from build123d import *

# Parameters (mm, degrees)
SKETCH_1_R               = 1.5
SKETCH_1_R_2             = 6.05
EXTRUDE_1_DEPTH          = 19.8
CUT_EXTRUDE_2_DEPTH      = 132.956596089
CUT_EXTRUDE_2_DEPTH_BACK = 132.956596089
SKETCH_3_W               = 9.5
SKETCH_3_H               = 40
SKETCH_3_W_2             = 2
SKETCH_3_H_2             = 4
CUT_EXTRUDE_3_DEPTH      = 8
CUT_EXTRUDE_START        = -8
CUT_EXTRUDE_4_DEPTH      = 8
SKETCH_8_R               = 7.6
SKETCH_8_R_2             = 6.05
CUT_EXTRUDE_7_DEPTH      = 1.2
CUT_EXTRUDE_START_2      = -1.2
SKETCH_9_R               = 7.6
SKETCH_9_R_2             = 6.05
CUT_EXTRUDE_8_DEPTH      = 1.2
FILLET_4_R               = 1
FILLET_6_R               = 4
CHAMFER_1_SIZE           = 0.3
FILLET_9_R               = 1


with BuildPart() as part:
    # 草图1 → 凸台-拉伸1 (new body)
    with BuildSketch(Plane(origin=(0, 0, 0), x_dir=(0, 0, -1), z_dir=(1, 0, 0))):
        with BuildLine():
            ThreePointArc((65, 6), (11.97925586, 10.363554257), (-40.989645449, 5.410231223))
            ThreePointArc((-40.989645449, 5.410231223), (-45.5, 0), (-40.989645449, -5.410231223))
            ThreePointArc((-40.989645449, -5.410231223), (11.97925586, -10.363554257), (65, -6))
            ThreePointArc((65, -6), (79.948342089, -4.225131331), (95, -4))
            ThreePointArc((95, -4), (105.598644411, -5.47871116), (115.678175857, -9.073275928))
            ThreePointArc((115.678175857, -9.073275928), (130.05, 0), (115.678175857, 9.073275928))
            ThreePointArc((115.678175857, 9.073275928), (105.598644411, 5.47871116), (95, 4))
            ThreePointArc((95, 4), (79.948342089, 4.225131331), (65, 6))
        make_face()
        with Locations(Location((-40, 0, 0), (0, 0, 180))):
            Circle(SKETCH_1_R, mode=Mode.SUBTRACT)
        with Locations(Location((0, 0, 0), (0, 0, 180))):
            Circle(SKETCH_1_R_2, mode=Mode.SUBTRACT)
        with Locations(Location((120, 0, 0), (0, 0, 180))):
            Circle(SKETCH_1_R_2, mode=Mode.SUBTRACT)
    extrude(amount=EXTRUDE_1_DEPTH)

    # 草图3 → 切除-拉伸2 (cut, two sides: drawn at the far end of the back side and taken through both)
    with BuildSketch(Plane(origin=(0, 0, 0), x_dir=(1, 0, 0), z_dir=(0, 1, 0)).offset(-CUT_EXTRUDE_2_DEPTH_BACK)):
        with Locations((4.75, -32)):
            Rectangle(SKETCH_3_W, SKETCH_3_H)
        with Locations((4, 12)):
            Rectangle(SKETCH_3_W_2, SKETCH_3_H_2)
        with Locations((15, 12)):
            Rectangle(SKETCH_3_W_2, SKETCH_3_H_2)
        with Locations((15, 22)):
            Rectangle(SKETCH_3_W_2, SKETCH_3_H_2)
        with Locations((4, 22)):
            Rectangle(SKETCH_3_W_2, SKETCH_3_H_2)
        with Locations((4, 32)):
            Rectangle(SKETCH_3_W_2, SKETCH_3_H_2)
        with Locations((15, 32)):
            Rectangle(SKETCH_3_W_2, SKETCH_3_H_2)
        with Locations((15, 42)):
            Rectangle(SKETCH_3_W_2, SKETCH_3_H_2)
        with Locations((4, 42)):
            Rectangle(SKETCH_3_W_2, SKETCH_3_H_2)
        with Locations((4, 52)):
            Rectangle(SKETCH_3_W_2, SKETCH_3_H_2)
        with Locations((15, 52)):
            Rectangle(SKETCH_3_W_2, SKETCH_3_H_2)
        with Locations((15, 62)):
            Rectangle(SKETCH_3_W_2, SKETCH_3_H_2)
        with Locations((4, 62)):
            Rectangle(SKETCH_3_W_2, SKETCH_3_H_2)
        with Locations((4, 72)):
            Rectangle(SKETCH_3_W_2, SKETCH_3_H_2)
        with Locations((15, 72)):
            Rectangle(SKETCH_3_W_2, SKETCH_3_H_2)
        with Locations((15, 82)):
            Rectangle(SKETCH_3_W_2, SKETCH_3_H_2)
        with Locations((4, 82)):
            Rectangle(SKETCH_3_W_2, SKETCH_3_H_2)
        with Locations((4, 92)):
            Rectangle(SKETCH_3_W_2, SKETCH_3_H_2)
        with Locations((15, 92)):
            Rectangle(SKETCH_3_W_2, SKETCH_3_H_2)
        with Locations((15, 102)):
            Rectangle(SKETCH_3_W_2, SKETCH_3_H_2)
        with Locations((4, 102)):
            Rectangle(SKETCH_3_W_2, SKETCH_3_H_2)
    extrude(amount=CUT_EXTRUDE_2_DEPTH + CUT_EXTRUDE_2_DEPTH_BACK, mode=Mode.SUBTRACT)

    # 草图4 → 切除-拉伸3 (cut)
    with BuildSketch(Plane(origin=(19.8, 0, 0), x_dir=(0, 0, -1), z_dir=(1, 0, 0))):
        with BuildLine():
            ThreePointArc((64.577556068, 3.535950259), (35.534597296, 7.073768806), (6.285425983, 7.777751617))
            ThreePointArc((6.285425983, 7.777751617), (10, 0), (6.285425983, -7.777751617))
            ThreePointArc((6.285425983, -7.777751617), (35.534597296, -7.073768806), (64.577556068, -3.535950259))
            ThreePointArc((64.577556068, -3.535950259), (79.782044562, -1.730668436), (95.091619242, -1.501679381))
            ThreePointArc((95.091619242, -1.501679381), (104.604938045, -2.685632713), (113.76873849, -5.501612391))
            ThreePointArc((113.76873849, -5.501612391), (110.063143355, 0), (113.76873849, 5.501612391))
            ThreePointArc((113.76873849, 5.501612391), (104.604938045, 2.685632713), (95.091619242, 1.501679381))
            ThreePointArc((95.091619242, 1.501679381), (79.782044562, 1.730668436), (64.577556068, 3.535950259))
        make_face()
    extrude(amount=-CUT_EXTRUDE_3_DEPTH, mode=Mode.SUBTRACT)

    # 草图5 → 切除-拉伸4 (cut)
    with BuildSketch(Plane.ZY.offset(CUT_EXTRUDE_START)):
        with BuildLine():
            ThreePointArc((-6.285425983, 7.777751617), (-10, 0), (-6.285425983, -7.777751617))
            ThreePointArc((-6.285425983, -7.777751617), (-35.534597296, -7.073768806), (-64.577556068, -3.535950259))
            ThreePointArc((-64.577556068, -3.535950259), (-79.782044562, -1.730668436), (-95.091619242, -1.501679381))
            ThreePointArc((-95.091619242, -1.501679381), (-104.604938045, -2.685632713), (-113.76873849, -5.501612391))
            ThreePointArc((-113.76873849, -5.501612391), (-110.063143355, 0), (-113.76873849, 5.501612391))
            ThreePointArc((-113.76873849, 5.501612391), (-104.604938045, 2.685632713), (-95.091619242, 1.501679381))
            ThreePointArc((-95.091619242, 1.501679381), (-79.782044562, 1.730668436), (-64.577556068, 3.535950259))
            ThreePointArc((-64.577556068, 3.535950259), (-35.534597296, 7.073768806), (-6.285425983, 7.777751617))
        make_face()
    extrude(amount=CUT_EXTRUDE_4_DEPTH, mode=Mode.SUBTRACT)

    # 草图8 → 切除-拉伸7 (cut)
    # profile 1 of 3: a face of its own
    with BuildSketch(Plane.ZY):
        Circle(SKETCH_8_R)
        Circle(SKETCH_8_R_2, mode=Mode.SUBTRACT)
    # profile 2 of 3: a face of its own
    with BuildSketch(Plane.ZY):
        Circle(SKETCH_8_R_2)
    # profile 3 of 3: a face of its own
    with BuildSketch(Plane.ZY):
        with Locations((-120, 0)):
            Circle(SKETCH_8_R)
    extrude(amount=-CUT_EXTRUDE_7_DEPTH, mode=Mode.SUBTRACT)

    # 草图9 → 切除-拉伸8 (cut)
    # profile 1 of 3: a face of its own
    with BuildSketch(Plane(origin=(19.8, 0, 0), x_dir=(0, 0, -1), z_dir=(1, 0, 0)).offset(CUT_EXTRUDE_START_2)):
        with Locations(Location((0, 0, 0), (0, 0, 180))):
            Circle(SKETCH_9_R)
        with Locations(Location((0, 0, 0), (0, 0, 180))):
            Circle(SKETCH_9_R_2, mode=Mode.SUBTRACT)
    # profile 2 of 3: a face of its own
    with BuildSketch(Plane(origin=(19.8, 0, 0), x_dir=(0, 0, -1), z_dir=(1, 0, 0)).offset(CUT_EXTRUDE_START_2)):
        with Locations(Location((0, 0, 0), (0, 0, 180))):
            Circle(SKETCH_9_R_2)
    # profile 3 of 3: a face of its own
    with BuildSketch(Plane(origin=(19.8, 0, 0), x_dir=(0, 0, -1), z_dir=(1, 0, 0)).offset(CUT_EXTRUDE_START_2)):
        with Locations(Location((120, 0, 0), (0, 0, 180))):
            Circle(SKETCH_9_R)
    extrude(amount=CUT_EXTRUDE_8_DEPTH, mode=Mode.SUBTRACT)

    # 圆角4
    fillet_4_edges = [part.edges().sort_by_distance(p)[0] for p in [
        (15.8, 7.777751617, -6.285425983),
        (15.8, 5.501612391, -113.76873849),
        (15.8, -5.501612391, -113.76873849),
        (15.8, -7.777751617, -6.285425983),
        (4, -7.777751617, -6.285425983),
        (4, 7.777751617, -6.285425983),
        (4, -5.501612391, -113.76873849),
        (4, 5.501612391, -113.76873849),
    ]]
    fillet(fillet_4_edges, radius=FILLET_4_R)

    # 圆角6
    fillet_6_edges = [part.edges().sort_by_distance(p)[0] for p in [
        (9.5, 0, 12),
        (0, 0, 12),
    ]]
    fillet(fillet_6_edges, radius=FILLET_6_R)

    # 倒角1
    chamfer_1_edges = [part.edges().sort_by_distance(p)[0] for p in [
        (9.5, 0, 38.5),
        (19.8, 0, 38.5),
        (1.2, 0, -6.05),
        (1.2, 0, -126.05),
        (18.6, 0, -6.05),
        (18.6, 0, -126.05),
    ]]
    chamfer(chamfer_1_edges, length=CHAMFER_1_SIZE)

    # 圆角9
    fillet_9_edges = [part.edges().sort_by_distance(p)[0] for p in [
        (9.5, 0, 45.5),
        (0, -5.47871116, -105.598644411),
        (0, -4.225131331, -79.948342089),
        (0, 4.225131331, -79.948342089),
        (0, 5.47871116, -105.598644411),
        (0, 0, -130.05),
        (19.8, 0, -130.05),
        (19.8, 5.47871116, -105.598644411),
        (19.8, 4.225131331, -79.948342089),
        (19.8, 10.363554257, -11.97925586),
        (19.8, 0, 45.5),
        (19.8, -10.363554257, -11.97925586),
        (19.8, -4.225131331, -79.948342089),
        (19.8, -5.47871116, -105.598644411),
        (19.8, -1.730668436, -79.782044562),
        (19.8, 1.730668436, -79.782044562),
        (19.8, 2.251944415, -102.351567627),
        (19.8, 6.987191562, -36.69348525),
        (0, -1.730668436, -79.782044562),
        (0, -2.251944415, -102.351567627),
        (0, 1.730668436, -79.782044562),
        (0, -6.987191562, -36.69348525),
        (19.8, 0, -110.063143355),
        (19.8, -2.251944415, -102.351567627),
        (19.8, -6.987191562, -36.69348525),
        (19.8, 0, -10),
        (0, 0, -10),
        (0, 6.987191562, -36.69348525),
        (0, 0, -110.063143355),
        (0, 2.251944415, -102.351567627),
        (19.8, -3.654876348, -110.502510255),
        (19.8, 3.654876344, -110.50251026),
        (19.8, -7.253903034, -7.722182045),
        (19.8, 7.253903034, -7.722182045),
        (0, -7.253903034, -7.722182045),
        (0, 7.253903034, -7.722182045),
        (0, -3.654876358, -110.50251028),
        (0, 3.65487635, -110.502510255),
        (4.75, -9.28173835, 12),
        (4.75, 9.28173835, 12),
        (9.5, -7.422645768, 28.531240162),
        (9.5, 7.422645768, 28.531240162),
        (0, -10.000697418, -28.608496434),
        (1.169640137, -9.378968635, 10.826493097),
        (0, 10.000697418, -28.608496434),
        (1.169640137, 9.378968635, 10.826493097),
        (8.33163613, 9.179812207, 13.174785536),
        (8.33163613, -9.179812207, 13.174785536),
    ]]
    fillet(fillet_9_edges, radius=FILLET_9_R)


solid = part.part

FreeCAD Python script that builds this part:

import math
import FreeCAD as App
import Part
import Sketcher

V = App.Vector
Q = App.Units.Quantity


def edges_at(feature, points):
    """Names of the edges that pass closest to the given points."""
    edges = feature.Shape.Edges
    near = lambda p: min(range(len(edges)), key=lambda i: edges[i].distToShape(Part.Vertex(*p))[0])
    return sorted({f"Edge{near(p) + 1}" for p in points})

doc = App.newDocument("Part")
params = doc.addObject("Spreadsheet::Sheet", "Params")
for row, (alias, value) in enumerate([
    ("sketch1_diameter", "3 mm"),
    ("sketch1_diameter2", "12.1 mm"),
    ("sketch1_radius", "5.5 mm"),
    ("sketch1_radius2", "10.05 mm"),
    ("pad1_length", "19.8 mm"),
    ("sketch2_width", "2 mm"),
    ("sketch2_height", "40 mm"),
    ("sketch2_height2", "4 mm"),
    ("sketch2_width2", "9.5 mm"),
    ("sketch3_radius", "10 mm"),
    ("pocket2_length", "8 mm"),
    ("sketch4_radius", "10 mm"),
    ("pocket3_length", "8 mm"),
    ("sketch5_diameter", "15.2 mm"),
    ("pocket4_length", "1.2 mm"),
    ("sketch6_diameter", "15.2 mm"),
    ("pocket5_length", "1.2 mm"),
    ("fillet_radius", "1 mm"),
    ("fillet2_radius", "4 mm"),
    ("chamfer_size", "0.3 mm"),
    ("fillet3_radius", "1 mm"),
], start=1):
    params.set(f"A{row}", alias)
    params.set(f"B{row}", "=" + value)
    params.setAlias(f"B{row}", alias)

body = doc.addObject("PartDesign::Body", "Body")

sketch1 = body.newObject("Sketcher::SketchObject", "Sketch")
sketch1.AttachmentSupport = (doc.getObject("YZ_Plane"), [""])
sketch1.MapMode = "FlatFace"
sketch1.addGeometry([
    Part.ArcOfCircle(Part.Circle(V(-293.402632, -13.669532, 0), V(0, 0, 1), 303.770889), math.radians(-9.728378), math.radians(10.366005)),
    Part.ArcOfCircle(Part.Circle(V(0, 40, 0), V(0, 0, 1), 5.5), math.radians(10.366005), math.radians(169.633995)),
    Part.ArcOfCircle(Part.Circle(V(293.402632, -13.669532, 0), V(0, 0, 1), 303.770889), math.radians(169.633995), math.radians(189.728378)),
    Part.ArcOfCircle(Part.Circle(V(-149.798459, -89.653231, 0), V(0, 0, 1), 145.896465), math.radians(-2.100229), math.radians(9.728378)),
    Part.ArcOfCircle(Part.Circle(V(-56.529478, -93.073622, 0), V(0, 0, 1), 52.564788), math.radians(-25.469607), math.radians(-2.100229)),
    Part.ArcOfCircle(Part.Circle(V(0, -120, 0), V(0, 0, 1), 10.05), math.radians(154.530393), math.radians(385.469607)),
    Part.ArcOfCircle(Part.Circle(V(56.529478, -93.073622, 0), V(0, 0, 1), 52.564788), math.radians(-177.899771), math.radians(-154.530393)),
    Part.ArcOfCircle(Part.Circle(V(149.798459, -89.653231, 0), V(0, 0, 1), 145.896465), math.radians(170.271622), math.radians(182.100229)),
    Part.Circle(V(0, 40, 0), V(0, 0, 1), 1.5),
    Part.Circle(V(0, 0, 0), V(0, 0, 1), 6.05),
    Part.Circle(V(0, -120, 0), V(0, 0, 1), 6.05),
], False)
sketch1.addConstraint([
    Sketcher.Constraint("Tangent", 0, 2, 1, 1),
    Sketcher.Constraint("Tangent", 1, 2, 2, 1),
    Sketcher.Constraint("Tangent", 2, 2, 3, 2),
    Sketcher.Constraint("Tangent", 3, 1, 4, 2),
    Sketcher.Constraint("Tangent", 4, 1, 5, 1),
    Sketcher.Constraint("Tangent", 5, 2, 6, 2),
    Sketcher.Constraint("Tangent", 6, 1, 7, 2),
    Sketcher.Constraint("Tangent", 7, 1, 0, 1),
    Sketcher.Constraint("Coincident", 9, 3, -1, 1),
    Sketcher.Constraint("Coincident", 8, 3, 1, 3),
    Sketcher.Constraint("Coincident", 10, 3, 5, 3),
    Sketcher.Constraint("Equal", 0, 2),
    Sketcher.Constraint("Equal", 4, 6),
    Sketcher.Constraint("Equal", 3, 7),
    Sketcher.Constraint("Equal", 9, 10),
    Sketcher.Constraint("Symmetric", 0, 3, 2, 3, -2),
    Sketcher.Constraint("Symmetric", 4, 3, 6, 3, -2),
    Sketcher.Constraint("Diameter", 8, Q("3 mm")),
    Sketcher.Constraint("Diameter", 9, Q("12.1 mm")),
    Sketcher.Constraint("Radius", 1, Q("5.5 mm")),
    Sketcher.Constraint("Radius", 5, Q("10.05 mm")),
    Sketcher.Constraint("DistanceY", -1, 1, 1, 3, Q("40 mm")),
    Sketcher.Constraint("DistanceY", 5, 3, -1, 1, Q("120 mm")),
    Sketcher.Constraint("DistanceX", 2, 2, -1, 1, Q("6 mm")),
    Sketcher.Constraint("DistanceX", 3, 1, -1, 1, Q("4 mm")),
    Sketcher.Constraint("DistanceY", 6, 1, -1, 1, Q("95 mm")),
    Sketcher.Constraint("Radius", 0, Q("303.770889 mm")),
    Sketcher.Constraint("Radius", 4, Q("52.564788 mm")),
])
sketch1.setExpression("Constraints[17]", "Params.sketch1_diameter")
sketch1.setExpression("Constraints[18]", "Params.sketch1_diameter2")
sketch1.setExpression("Constraints[19]", "Params.sketch1_radius")
sketch1.setExpression("Constraints[20]", "Params.sketch1_radius2")
pad1 = body.newObject("PartDesign::Pad", "Pad")
pad1.Profile = sketch1
pad1.setExpression("Length", "Params.pad1_length")

sketch2 = body.newObject("Sketcher::SketchObject", "Sketch001")
sketch2.AttachmentSupport = (doc.getObject("XZ_Plane"), [""])
sketch2.MapMode = "FlatFace"
sketch2.addGeometry([
    Part.LineSegment(V(0, 12, 0), V(0, 52, 0)),
    Part.LineSegment(V(0, 52, 0), V(9.5, 52, 0)),
    Part.LineSegment(V(9.5, 52, 0), V(9.5, 12, 0)),
    Part.LineSegment(V(9.5, 12, 0), V(0, 12, 0)),
    Part.LineSegment(V(3, -14, 0), V(3, -10, 0)),
    Part.LineSegment(V(3, -10, 0), V(5, -10, 0)),
    Part.LineSegment(V(5, -10, 0), V(5, -14, 0)),
    Part.LineSegment(V(5, -14, 0), V(3, -14, 0)),
    Part.LineSegment(V(14, -14, 0), V(14, -10, 0)),
    Part.LineSegment(V(14, -10, 0), V(16, -10, 0)),
    Part.LineSegment(V(16, -10, 0), V(16, -14, 0)),
    Part.LineSegment(V(16, -14, 0), V(14, -14, 0)),
    Part.LineSegment(V(14, -24, 0), V(14, -20, 0)),
    Part.LineSegment(V(14, -20, 0), V(16, -20, 0)),
    Part.LineSegment(V(16, -20, 0), V(16, -24, 0)),
    Part.LineSegment(V(16, -24, 0), V(14, -24, 0)),
    Part.LineSegment(V(3, -24, 0), V(3, -20, 0)),
    Part.LineSegment(V(3, -20, 0), V(5, -20, 0)),
    Part.LineSegment(V(5, -20, 0), V(5, -24, 0)),
    Part.LineSegment(V(5, -24, 0), V(3, -24, 0)),
    Part.LineSegment(V(3, -34, 0), V(3, -30, 0)),
    Part.LineSegment(V(3, -30, 0), V(5, -30, 0)),
    Part.LineSegment(V(5, -30, 0), V(5, -34, 0)),
    Part.LineSegment(V(5, -34, 0), V(3, -34, 0)),
    Part.LineSegment(V(14, -34, 0), V(14, -30, 0)),
    Part.LineSegment(V(14, -30, 0), V(16, -30, 0)),
    Part.LineSegment(V(16, -30, 0), V(16, -34, 0)),
    Part.LineSegment(V(16, -34, 0), V(14, -34, 0)),
    Part.LineSegment(V(14, -44, 0), V(14, -40, 0)),
    Part.LineSegment(V(14, -40, 0), V(16, -40, 0)),
    Part.LineSegment(V(16, -40, 0), V(16, -44, 0)),
    Part.LineSegment(V(16, -44, 0), V(14, -44, 0)),
    Part.LineSegment(V(3, -44, 0), V(3, -40, 0)),
    Part.LineSegment(V(3, -40, 0), V(5, -40, 0)),
    Part.LineSegment(V(5, -40, 0), V(5, -44, 0)),
    Part.LineSegment(V(5, -44, 0), V(3, -44, 0)),
    Part.LineSegment(V(3, -54, 0), V(3, -50, 0)),
    Part.LineSegment(V(3, -50, 0), V(5, -50, 0)),
    Part.LineSegment(V(5, -50, 0), V(5, -54, 0)),
    Part.LineSegment(V(5, -54, 0), V(3, -54, 0)),
    Part.LineSegment(V(14, -54, 0), V(14, -50, 0)),
    Part.LineSegment(V(14, -50, 0), V(16, -50, 0)),
    Part.LineSegment(V(16, -50, 0), V(16, -54, 0)),
    Part.LineSegment(V(16, -54, 0), V(14, -54, 0)),
    Part.LineSegment(V(14, -64, 0), V(14, -60, 0)),
    Part.LineSegment(V(14, -60, 0), V(16, -60, 0)),
    Part.LineSegment(V(16, -60, 0), V(16, -64, 0)),
    Part.LineSegment(V(16, -64, 0), V(14, -64, 0)),
    Part.LineSegment(V(3, -64, 0), V(3, -60, 0)),
    Part.LineSegment(V(3, -60, 0), V(5, -60, 0)),
    Part.LineSegment(V(5, -60, 0), V(5, -64, 0)),
    Part.LineSegment(V(5, -64, 0), V(3, -64, 0)),
    Part.LineSegment(V(3, -74, 0), V(3, -70, 0)),
    Part.LineSegment(V(3, -70, 0), V(5, -70, 0)),
    Part.LineSegment(V(5, -70, 0), V(5, -74, 0)),
    Part.LineSegment(V(5, -74, 0), V(3, -74, 0)),
    Part.LineSegment(V(14, -74, 0), V(14, -70, 0)),
    Part.LineSegment(V(14, -70, 0), V(16, -70, 0)),
    Part.LineSegment(V(16, -70, 0), V(16, -74, 0)),
    Part.LineSegment(V(16, -74, 0), V(14, -74, 0)),
    Part.LineSegment(V(14, -84, 0), V(14, -80, 0)),
    Part.LineSegment(V(14, -80, 0), V(16, -80, 0)),
    Part.LineSegment(V(16, -80, 0), V(16, -84, 0)),
    Part.LineSegment(V(16, -84, 0), V(14, -84, 0)),
    Part.LineSegment(V(3, -84, 0), V(3, -80, 0)),
    Part.LineSegment(V(3, -80, 0), V(5, -80, 0)),
    Part.LineSegment(V(5, -80, 0), V(5, -84, 0)),
    Part.LineSegment(V(5, -84, 0), V(3, -84, 0)),
    Part.LineSegment(V(3, -94, 0), V(3, -90, 0)),
    Part.LineSegment(V(3, -90, 0), V(5, -90, 0)),
    Part.LineSegment(V(5, -90, 0), V(5, -94, 0)),
    Part.LineSegment(V(5, -94, 0), V(3, -94, 0)),
    Part.LineSegment(V(14, -94, 0), V(14, -90, 0)),
    Part.LineSegment(V(14, -90, 0), V(16, -90, 0)),
    Part.LineSegment(V(16, -90, 0), V(16, -94, 0)),
    Part.LineSegment(V(16, -94, 0), V(14, -94, 0)),
    Part.LineSegment(V(14, -104, 0), V(14, -100, 0)),
    Part.LineSegment(V(14, -100, 0), V(16, -100, 0)),
    Part.LineSegment(V(16, -100, 0), V(16, -104, 0)),
    Part.LineSegment(V(16, -104, 0), V(14, -104, 0)),
    Part.LineSegment(V(3, -104, 0), V(3, -100, 0)),
    Part.LineSegment(V(3, -100, 0), V(5, -100, 0)),
    Part.LineSegment(V(5, -100, 0), V(5, -104, 0)),
    Part.LineSegment(V(5, -104, 0), V(3, -104, 0)),
], False)
sketch2.addConstraint([
    Sketcher.Constraint("Coincident", 0, 2, 1, 1),
    Sketcher.Constraint("Coincident", 1, 2, 2, 1),
    Sketcher.Constraint("Coincident", 2, 2, 3, 1),
    Sketcher.Constraint("Coincident", 3, 2, 0, 1),
    Sketcher.Constraint("Coincident", 4, 2, 5, 1),
    Sketcher.Constraint("Coincident", 5, 2, 6, 1),
    Sketcher.Constraint("Coincident", 6, 2, 7, 1),
    Sketcher.Constraint("Coincident", 7, 2, 4, 1),
    Sketcher.Constraint("Coincident", 8, 2, 9, 1),
    Sketcher.Constraint("Coincident", 9, 2, 10, 1),
    Sketcher.Constraint("Coincident", 10, 2, 11, 1),
    Sketcher.Constraint("Coincident", 11, 2, 8, 1),
    Sketcher.Constraint("Coincident", 12, 2, 13, 1),
    Sketcher.Constraint("Coincident", 13, 2, 14, 1),
    Sketcher.Constraint("Coincident", 14, 2, 15, 1),
    Sketcher.Constraint("Coincident", 15, 2, 12, 1),
    Sketcher.Constraint("Coincident", 16, 2, 17, 1),
    Sketcher.Constraint("Coincident", 17, 2, 18, 1),
    Sketcher.Constraint("Coincident", 18, 2, 19, 1),
    Sketcher.Constraint("Coincident", 19, 2, 16, 1),
    Sketcher.Constraint("Coincident", 20, 2, 21, 1),
    Sketcher.Constraint("Coincident", 21, 2, 22, 1),
    Sketcher.Constraint("Coincident", 22, 2, 23, 1),
    Sketcher.Constraint("Coincident", 23, 2, 20, 1),
    Sketcher.Constraint("Coincident", 24, 2, 25, 1),
    Sketcher.Constraint("Coincident", 25, 2, 26, 1),
    Sketcher.Constraint("Coincident", 26, 2, 27, 1),
    Sketcher.Constraint("Coincident", 27, 2, 24, 1),
    Sketcher.Constraint("Coincident", 28, 2, 29, 1),
    Sketcher.Constraint("Coincident", 29, 2, 30, 1),
    Sketcher.Constraint("Coincident", 30, 2, 31, 1),
    Sketcher.Constraint("Coincident", 31, 2, 28, 1),
    Sketcher.Constraint("Coincident", 32, 2, 33, 1),
    Sketcher.Constraint("Coincident", 33, 2, 34, 1),
    Sketcher.Constraint("Coincident", 34, 2, 35, 1),
    Sketcher.Constraint("Coincident", 35, 2, 32, 1),
    Sketcher.Constraint("Coincident", 36, 2, 37, 1),
    Sketcher.Constraint("Coincident", 37, 2, 38, 1),
    Sketcher.Constraint("Coincident", 38, 2, 39, 1),
    Sketcher.Constraint("Coincident", 39, 2, 36, 1),
    Sketcher.Constraint("Coincident", 40, 2, 41, 1),
    Sketcher.Constraint("Coincident", 41, 2, 42, 1),
    Sketcher.Constraint("Coincident", 42, 2, 43, 1),
    Sketcher.Constraint("Coincident", 43, 2, 40, 1),
    Sketcher.Constraint("Coincident", 44, 2, 45, 1),
    Sketcher.Constraint("Coincident", 45, 2, 46, 1),
    Sketcher.Constraint("Coincident", 46, 2, 47, 1),
    Sketcher.Constraint("Coincident", 47, 2, 44, 1),
    Sketcher.Constraint("Coincident", 48, 2, 49, 1),
    Sketcher.Constraint("Coincident", 49, 2, 50, 1),
    Sketcher.Constraint("Coincident", 50, 2, 51, 1),
    Sketcher.Constraint("Coincident", 51, 2, 48, 1),
    Sketcher.Constraint("Coincident", 52, 2, 53, 1),
    Sketcher.Constraint("Coincident", 53, 2, 54, 1),
    Sketcher.Constraint("Coincident", 54, 2, 55, 1),
    Sketcher.Constraint("Coincident", 55, 2, 52, 1),
    Sketcher.Constraint("Coincident", 56, 2, 57, 1),
    Sketcher.Constraint("Coincident", 57, 2, 58, 1),
    Sketcher.Constraint("Coincident", 58, 2, 59, 1),
    Sketcher.Constraint("Coincident", 59, 2, 56, 1),
    Sketcher.Constraint("Coincident", 60, 2, 61, 1),
    Sketcher.Constraint("Coincident", 61, 2, 62, 1),
    Sketcher.Constraint("Coincident", 62, 2, 63, 1),
    Sketcher.Constraint("Coincident", 63, 2, 60, 1),
    Sketcher.Constraint("Coincident", 64, 2, 65, 1),
    Sketcher.Constraint("Coincident", 65, 2, 66, 1),
    Sketcher.Constraint("Coincident", 66, 2, 67, 1),
    Sketcher.Constraint("Coincident", 67, 2, 64, 1),
    Sketcher.Constraint("Coincident", 68, 2, 69, 1),
    Sketcher.Constraint("Coincident", 69, 2, 70, 1),
    Sketcher.Constraint("Coincident", 70, 2, 71, 1),
    Sketcher.Constraint("Coincident", 71, 2, 68, 1),
    Sketcher.Constraint("Coincident", 72, 2, 73, 1),
    Sketcher.Constraint("Coincident", 73, 2, 74, 1),
    Sketcher.Constraint("Coincident", 74, 2, 75, 1),
    Sketcher.Constraint("Coincident", 75, 2, 72, 1),
    Sketcher.Constraint("Coincident", 76, 2, 77, 1),
    Sketcher.Constraint("Coincident", 77, 2, 78, 1),
    Sketcher.Constraint("Coincident", 78, 2, 79, 1),
    Sketcher.Constraint("Coincident", 79, 2, 76, 1),
    Sketcher.Constraint("Coincident", 80, 2, 81, 1),
    Sketcher.Constraint("Coincident", 81, 2, 82, 1),
    Sketcher.Constraint("Coincident", 82, 2, 83, 1),
    Sketcher.Constraint("Coincident", 83, 2, 80, 1),
    Sketcher.Constraint("Vertical", 0),
    Sketcher.Constraint("Horizontal", 1),
    Sketcher.Constraint("Vertical", 2),
    Sketcher.Constraint("Horizontal", 3),
    Sketcher.Constraint("Vertical", 4),
    Sketcher.Constraint("Horizontal", 5),
    Sketcher.Constraint("Vertical", 6),
    Sketcher.Constraint("Horizontal", 7),
    Sketcher.Constraint("Vertical", 8),
    Sketcher.Constraint("Horizontal", 9),
    Sketcher.Constraint("Vertical", 10),
    Sketcher.Constraint("Horizontal", 11),
    Sketcher.Constraint("Vertical", 12),
    Sketcher.Constraint("Horizontal", 13),
    Sketcher.Constraint("Vertical", 14),
    Sketcher.Constraint("Horizontal", 15),
    Sketcher.Constraint("Vertical", 16),
    Sketcher.Constraint("Horizontal", 17),
    Sketcher.Constraint("Vertical", 18),
    Sketcher.Constraint("Horizontal", 19),
    Sketcher.Constraint("Vertical", 20),
    Sketcher.Constraint("Horizontal", 21),
    Sketcher.Constraint("Vertical", 22),
    Sketcher.Constraint("Horizontal", 23),
    Sketcher.Constraint("Vertical", 24),
    Sketcher.Constraint("Horizontal", 25),
    Sketcher.Constraint("Vertical", 26),
    Sketcher.Constraint("Horizontal", 27),
    Sketcher.Constraint("Vertical", 28),
    Sketcher.Constraint("Horizontal", 29),
    Sketcher.Constraint("Vertical", 30),
    Sketcher.Constraint("Horizontal", 31),
    Sketcher.Constraint("Vertical", 32),
    Sketcher.Constraint("Horizontal", 33),
    Sketcher.Constraint("Vertical", 34),
    Sketcher.Constraint("Horizontal", 35),
    Sketcher.Constraint("Vertical", 36),
    Sketcher.Constraint("Horizontal", 37),
    Sketcher.Constraint("Vertical", 38),
    Sketcher.Constraint("Horizontal", 39),
    Sketcher.Constraint("Vertical", 40),
    Sketcher.Constraint("Horizontal", 41),
    Sketcher.Constraint("Vertical", 42),
    Sketcher.Constraint("Horizontal", 43),
    Sketcher.Constraint("Vertical", 44),
    Sketcher.Constraint("Horizontal", 45),
    Sketcher.Constraint("Vertical", 46),
    Sketcher.Constraint("Horizontal", 47),
    Sketcher.Constraint("Vertical", 48),
    Sketcher.Constraint("Horizontal", 49),
    Sketcher.Constraint("Vertical", 50),
    Sketcher.Constraint("Horizontal", 51),
    Sketcher.Constraint("Vertical", 52),
    Sketcher.Constraint("Horizontal", 53),
    Sketcher.Constraint("Vertical", 54),
    Sketcher.Constraint("Horizontal", 55),
    Sketcher.Constraint("Vertical", 56),
    Sketcher.Constraint("Horizontal", 57),
    Sketcher.Constraint("Vertical", 58),
    Sketcher.Constraint("Horizontal", 59),
    Sketcher.Constraint("Vertical", 60),
    Sketcher.Constraint("Horizontal", 61),
    Sketcher.Constraint("Vertical", 62),
    Sketcher.Constraint("Horizontal", 63),
    Sketcher.Constraint("Vertical", 64),
    Sketcher.Constraint("Horizontal", 65),
    Sketcher.Constraint("Vertical", 66),
    Sketcher.Constraint("Horizontal", 67),
    Sketcher.Constraint("Vertical", 68),
    Sketcher.Constraint("Horizontal", 69),
    Sketcher.Constraint("Vertical", 70),
    Sketcher.Constraint("Horizontal", 71),
    Sketcher.Constraint("Vertical", 72),
    Sketcher.Constraint("Horizontal", 73),
    Sketcher.Constraint("Vertical", 74),
    Sketcher.Constraint("Horizontal", 75),
    Sketcher.Constraint("Vertical", 76),
    Sketcher.Constraint("Horizontal", 77),
    Sketcher.Constraint("Vertical", 78),
    Sketcher.Constraint("Horizontal", 79),
    Sketcher.Constraint("Vertical", 80),
    Sketcher.Constraint("Horizontal", 81),
    Sketcher.Constraint("Vertical", 82),
    Sketcher.Constraint("Horizontal", 83),
    Sketcher.Constraint("PointOnObject", 0, 2, -2),
    Sketcher.Constraint("Horizontal", 5, 2, 8, 2),
    Sketcher.Constraint("Horizontal", 7, 2, 10, 2),
    Sketcher.Constraint("Horizontal", 13, 2, 16, 2),
    Sketcher.Constraint("Horizontal", 15, 2, 18, 2),
    Sketcher.Constraint("Horizontal", 21, 2, 24, 2),
    Sketcher.Constraint("Horizontal", 23, 2, 26, 2),
    Sketcher.Constraint("Horizontal", 29, 2, 32, 2),
    Sketcher.Constraint("Horizontal", 31, 2, 34, 2),
    Sketcher.Constraint("Horizontal", 37, 2, 40, 2),
    Sketcher.Constraint("Horizontal", 39, 2, 42, 2),
    Sketcher.Constraint("Horizontal", 45, 2, 48, 2),
    Sketcher.Constraint("Horizontal", 47, 2, 50, 2),
    Sketcher.Constraint("Horizontal", 53, 2, 56, 2),
    Sketcher.Constraint("Horizontal", 55, 2, 58, 2),
    Sketcher.Constraint("Horizontal", 61, 2, 64, 2),
    Sketcher.Constraint("Horizontal", 63, 2, 66, 2),
    Sketcher.Constraint("Horizontal", 69, 2, 72, 2),
    Sketcher.Constraint("Horizontal", 71, 2, 74, 2),
    Sketcher.Constraint("Horizontal", 77, 2, 80, 2),
    Sketcher.Constraint("Horizontal", 79, 2, 82, 2),
    Sketcher.Constraint("Vertical", 11, 2, 12, 2),
    Sketcher.Constraint("Vertical", 10, 2, 13, 2),
    Sketcher.Constraint("Vertical", 7, 2, 16, 2),
    Sketcher.Constraint("Vertical", 6, 2, 17, 2),
    Sketcher.Constraint("Vertical", 19, 2, 20, 2),
    Sketcher.Constraint("Vertical", 18, 2, 21, 2),
    Sketcher.Constraint("Vertical", 15, 2, 24, 2),
    Sketcher.Constraint("Vertical", 14, 2, 25, 2),
    Sketcher.Constraint("Vertical", 27, 2, 28, 2),
    Sketcher.Constraint("Vertical", 26, 2, 29, 2),
    Sketcher.Constraint("Vertical", 23, 2, 32, 2),
    Sketcher.Constraint("Vertical", 22, 2, 33, 2),
    Sketcher.Constraint("Vertical", 35, 2, 36, 2),
    Sketcher.Constraint("Vertical", 34, 2, 37, 2),
    Sketcher.Constraint("Vertical", 31, 2, 40, 2),
    Sketcher.Constraint("Vertical", 30, 2, 41, 2),
    Sketcher.Constraint("Vertical", 43, 2, 44, 2),
    Sketcher.Constraint("Vertical", 42, 2, 45, 2),
    Sketcher.Constraint("Vertical", 39, 2, 48, 2),
    Sketcher.Constraint("Vertical", 38, 2, 49, 2),
    Sketcher.Constraint("Vertical", 51, 2, 52, 2),
    Sketcher.Constraint("Vertical", 50, 2, 53, 2),
    Sketcher.Constraint("Vertical", 47, 2, 56, 2),
    Sketcher.Constraint("Vertical", 46, 2, 57, 2),
    Sketcher.Constraint("Vertical", 59, 2, 60, 2),
    Sketcher.Constraint("Vertical", 58, 2, 61, 2),
    Sketcher.Constraint("Vertical", 55, 2, 64, 2),
    Sketcher.Constraint("Vertical", 54, 2, 65, 2),
    Sketcher.Constraint("Vertical", 67, 2, 68, 2),
    Sketcher.Constraint("Vertical", 66, 2, 69, 2),
    Sketcher.Constraint("Vertical", 63, 2, 72, 2),
    Sketcher.Constraint("Vertical", 62, 2, 73, 2),
    Sketcher.Constraint("Vertical", 75, 2, 76, 2),
    Sketcher.Constraint("Vertical", 74, 2, 77, 2),
    Sketcher.Constraint("Vertical", 71, 2, 80, 2),
    Sketcher.Constraint("Vertical", 70, 2, 81, 2),
    Sketcher.Constraint("Equal", 7, 9),
    Sketcher.Constraint("Equal", 10, 12),
    Sketcher.Constraint("Equal", 18, 20),
    Sketcher.Constraint("Equal", 26, 28),
    Sketcher.Constraint("Equal", 34, 36),
    Sketcher.Constraint("Equal", 42, 44),
    Sketcher.Constraint("Equal", 50, 52),
    Sketcher.Constraint("Equal", 58, 60),
    Sketcher.Constraint("Equal", 66, 68),
    Sketcher.Constraint("Equal", 74, 76),
    Sketcher.Constraint("DistanceX", 5, 1, 5, 2, Q("2 mm")),
    Sketcher.Constraint("DistanceY", 0, 1, 0, 2, Q("40 mm")),
    Sketcher.Constraint("DistanceY", 4, 1, 4, 2, Q("4 mm")),
    Sketcher.Constraint("DistanceX", 1, 1, 1, 2, Q("9.5 mm")),
    Sketcher.Constraint("DistanceY", -1, 1, 0, 2, Q("52 mm")),
    Sketcher.Constraint("DistanceX", -1, 1, 4, 2, Q("3 mm")),
    Sketcher.Constraint("DistanceY", 4, 2, -1, 1, Q("10 mm")),
    Sketcher.Constraint("DistanceX", -1, 1, 8, 2, Q("14 mm")),
    Sketcher.Constraint("DistanceY", 12, 2, -1, 1, Q("20 mm")),
    Sketcher.Constraint("DistanceY", 20, 2, -1, 1, Q("30 mm")),
    Sketcher.Constraint("DistanceY", 28, 2, -1, 1, Q("40 mm")),
    Sketcher.Constraint("DistanceY", 36, 2, -1, 1, Q("50 mm")),
    Sketcher.Constraint("DistanceY", 44, 2, -1, 1, Q("60 mm")),
    Sketcher.Constraint("DistanceY", 52, 2, -1, 1, Q("70 mm")),
    Sketcher.Constraint("DistanceY", 60, 2, -1, 1, Q("80 mm")),
    Sketcher.Constraint("DistanceY", 68, 2, -1, 1, Q("90 mm")),
    Sketcher.Constraint("DistanceY", 76, 2, -1, 1, Q("100 mm")),
])
sketch2.setExpression("Constraints[235]", "Params.sketch2_width")
sketch2.setExpression("Constraints[236]", "Params.sketch2_height")
sketch2.setExpression("Constraints[237]", "Params.sketch2_height2")
sketch2.setExpression("Constraints[238]", "Params.sketch2_width2")
pocket1 = body.newObject("PartDesign::Pocket", "Pocket")
pocket1.Profile = sketch2
pocket1.Type = "ThroughAll"
pocket1.Midplane = True

sketch3 = body.newObject("Sketcher::SketchObject", "Sketch002")
sketch3.AttachmentSupport = (doc.getObject("YZ_Plane"), [""])
sketch3.MapMode = "FlatFace"
sketch3.AttachmentOffset = App.Placement(V(0, 0, 19.8), App.Rotation())
sketch3.addGeometry([
    Part.ArcOfCircle(Part.Circle(V(-293.402632, -13.669532, 0), V(0, 0, 1), 301.270889), math.radians(-9.728378), math.radians(1.404452)),
    Part.ArcOfCircle(Part.Circle(V(0, 0, 0), V(0, 0, 1), 10), math.radians(-141.05732), math.radians(-38.94268)),
    Part.ArcOfCircle(Part.Circle(V(293.402632, -13.669532, 0), V(0, 0, 1), 301.270889), math.radians(178.595548), math.radians(189.728378)),
    Part.ArcOfCircle(Part.Circle(V(-149.798459, -89.653231, 0), V(0, 0, 1), 148.396465), math.radians(-2.100229), math.radians(9.728378)),
    Part.ArcOfCircle(Part.Circle(V(-56.529478, -93.073622, 0), V(0, 0, 1), 55.064788), math.radians(-22.075753), math.radians(-2.100229)),
    Part.ArcOfCircle(Part.Circle(V(0, -116, 0), V(0, 0, 1), 5.936857), math.radians(22.075753), math.radians(157.924247)),
    Part.ArcOfCircle(Part.Circle(V(56.529478, -93.073622, 0), V(0, 0, 1), 55.064788), math.radians(-177.899771), math.radians(-157.924247)),
    Part.ArcOfCircle(Part.Circle(V(149.798459, -89.653231, 0), V(0, 0, 1), 148.396465), math.radians(170.271622), math.radians(182.100229)),
], False)
sketch3.addConstraint([
    Sketcher.Constraint("Coincident", 0, 2, 1, 2),
    Sketcher.Constraint("Coincident", 1, 1, 2, 1),
    Sketcher.Constraint("Tangent", 2, 2, 3, 2),
    Sketcher.Constraint("Tangent", 3, 1, 4, 2),
    Sketcher.Constraint("Tangent", 4, 1, 5, 2),
    Sketcher.Constraint("Tangent", 5, 1, 6, 2),
    Sketcher.Constraint("Tangent", 6, 1, 7, 2),
    Sketcher.Constraint("Tangent", 7, 1, 0, 1),
    Sketcher.Constraint("Coincident", 1, 3, -1, 1),
    Sketcher.Constraint("Equal", 0, 2),
    Sketcher.Constraint("Equal", 4, 6),
    Sketcher.Constraint("Equal", 3, 7),
    Sketcher.Constraint("Symmetric", 0, 3, 2, 3, -2),
    Sketcher.Constraint("Symmetric", 4, 3, 6, 3, -2),
    Sketcher.Constraint("Radius", 1, Q("10 mm")),
    Sketcher.Constraint("DistanceY", 5, 3, -1, 1, Q("116 mm")),
    Sketcher.Constraint("Radius", 0, Q("301.270889 mm")),
    Sketcher.Constraint("Radius", 4, Q("55.064788 mm")),
    Sketcher.Constraint("Radius", 3, Q("148.396465 mm")),
    Sketcher.Constraint("Radius", 5, Q("5.936857 mm")),
    Sketcher.Constraint("DistanceY", 3, 3, 0, 3, Q("75.983698 mm")),
    Sketcher.Constraint("DistanceX", 2, 2, 0, 2, Q("11.313702 mm")),
    Sketcher.Constraint("DistanceX", 4, 3, 3, 1, Q("55.027798 mm")),
])
sketch3.setExpression("Constraints[14]", "Params.sketch3_radius")
pocket2 = body.newObject("PartDesign::Pocket", "Pocket001")
pocket2.Profile = sketch3
pocket2.setExpression("Length", "Params.pocket2_length")

sketch4 = body.newObject("Sketcher::SketchObject", "Sketch003")
sketch4.AttachmentSupport = (doc.getObject("YZ_Plane"), [""])
sketch4.MapMode = "FlatFace"
sketch4.AttachmentOffset = App.Placement(V(0, 0, 8), App.Rotation())
sketch4.addGeometry([
    Part.ArcOfCircle(Part.Circle(V(0, 0, 0), V(0, 0, 1), 10), math.radians(-141.05732), math.radians(-38.94268)),
    Part.ArcOfCircle(Part.Circle(V(-293.402632, -13.669532, 0), V(0, 0, 1), 301.270889), math.radians(-9.728378), math.radians(1.404452)),
    Part.ArcOfCircle(Part.Circle(V(149.798459, -89.653231, 0), V(0, 0, 1), 148.396465), math.radians(170.271622), math.radians(182.100229)),
    Part.ArcOfCircle(Part.Circle(V(56.529478, -93.073622, 0), V(0, 0, 1), 55.064788), math.radians(-177.899771), math.radians(-157.924247)),
    Part.ArcOfCircle(Part.Circle(V(0, -116, 0), V(0, 0, 1), 5.936857), math.radians(22.075753), math.radians(157.924247)),
    Part.ArcOfCircle(Part.Circle(V(-56.529478, -93.073622, 0), V(0, 0, 1), 55.064788), math.radians(-22.075753), math.radians(-2.100229)),
    Part.ArcOfCircle(Part.Circle(V(-149.798459, -89.653231, 0), V(0, 0, 1), 148.396465), math.radians(-2.100229), math.radians(9.728378)),
    Part.ArcOfCircle(Part.Circle(V(293.402632, -13.669532, 0), V(0, 0, 1), 301.270889), math.radians(178.595548), math.radians(189.728378)),
], False)
sketch4.addConstraint([
    Sketcher.Constraint("Coincident", 0, 2, 1, 2),
    Sketcher.Constraint("Tangent", 1, 1, 2, 1),
    Sketcher.Constraint("Tangent", 2, 2, 3, 1),
    Sketcher.Constraint("Tangent", 3, 2, 4, 1),
    Sketcher.Constraint("Tangent", 4, 2, 5, 1),
    Sketcher.Constraint("Tangent", 5, 2, 6, 1),
    Sketcher.Constraint("Tangent", 6, 2, 7, 2),
    Sketcher.Constraint("Coincident", 7, 1, 0, 1),
    Sketcher.Constraint("Coincident", 0, 3, -1, 1),
    Sketcher.Constraint("Equal", 3, 5),
    Sketcher.Constraint("Equal", 2, 6),
    Sketcher.Constraint("Equal", 1, 7),
    Sketcher.Constraint("Symmetric", 3, 3, 5, 3, -2),
    Sketcher.Constraint("Symmetric", 1, 3, 7, 3, -2),
    Sketcher.Constraint("Radius", 0, Q("10 mm")),
    Sketcher.Constraint("DistanceY", 4, 3, -1, 1, Q("116 mm")),
    Sketcher.Constraint("Radius", 1, Q("301.270889 mm")),
    Sketcher.Constraint("Radius", 3, Q("55.064788 mm")),
    Sketcher.Constraint("Radius", 2, Q("148.396465 mm")),
    Sketcher.Constraint("Radius", 4, Q("5.936857 mm")),
    Sketcher.Constraint("DistanceY", 2, 3, 1, 3, Q("75.983698 mm")),
    Sketcher.Constraint("DistanceX", 2, 2, 3, 3, Q("55.027798 mm")),
    Sketcher.Constraint("DistanceX", 6, 2, 1, 1, Q("7.071901 mm")),
])
sketch4.setExpression("Constraints[14]", "Params.sketch4_radius")
pocket3 = body.newObject("PartDesign::Pocket", "Pocket002")
pocket3.Profile = sketch4
pocket3.setExpression("Length", "Params.pocket3_length")

sketch5 = body.newObject("Sketcher::SketchObject", "Sketch004")
sketch5.AttachmentSupport = (doc.getObject("YZ_Plane"), [""])
sketch5.MapMode = "FlatFace"
sketch5.addGeometry([
    Part.Circle(V(0, 0, 0), V(0, 0, 1), 7.6),
    Part.Circle(V(0, -120, 0), V(0, 0, 1), 7.6),
], False)
sketch5.addConstraint([
    Sketcher.Constraint("Coincident", 0, 3, -1, 1),
    Sketcher.Constraint("Equal", 0, 1),
    Sketcher.Constraint("PointOnObject", 1, 3, -2),
    Sketcher.Constraint("Diameter", 0, Q("15.2 mm")),
    Sketcher.Constraint("DistanceY", 1, 3, -1, 1, Q("120 mm")),
])
sketch5.setExpression("Constraints[3]", "Params.sketch5_diameter")
pocket4 = body.newObject("PartDesign::Pocket", "Pocket003")
pocket4.Profile = sketch5
pocket4.setExpression("Length", "Params.pocket4_length")
pocket4.Reversed = True

sketch6 = body.newObject("Sketcher::SketchObject", "Sketch005")
sketch6.AttachmentSupport = (doc.getObject("YZ_Plane"), [""])
sketch6.MapMode = "FlatFace"
sketch6.AttachmentOffset = App.Placement(V(0, 0, 18.6), App.Rotation())
sketch6.addGeometry([
    Part.Circle(V(0, 0, 0), V(0, 0, 1), 7.6),
    Part.Circle(V(0, -120, 0), V(0, 0, 1), 7.6),
], False)
sketch6.addConstraint([
    Sketcher.Constraint("Coincident", 0, 3, -1, 1),
    Sketcher.Constraint("Equal", 0, 1),
    Sketcher.Constraint("PointOnObject", 1, 3, -2),
    Sketcher.Constraint("Diameter", 0, Q("15.2 mm")),
    Sketcher.Constraint("DistanceY", 1, 3, -1, 1, Q("120 mm")),
])
sketch6.setExpression("Constraints[3]", "Params.sketch6_diameter")
pocket5 = body.newObject("PartDesign::Pocket", "Pocket004")
pocket5.Profile = sketch6
pocket5.setExpression("Length", "Params.pocket5_length")
pocket5.Reversed = True
doc.recompute()

fillet = body.newObject("PartDesign::Fillet", "Fillet")
fillet.Base = (pocket5, edges_at(pocket5, [
    (15.8, 7.778, -6.285),
    (15.8, 5.502, -113.769),
    (15.8, -5.502, -113.769),
    (15.8, -7.778, -6.285),
    (4, -7.778, -6.285),
    (4, 7.778, -6.285),
    (4, -5.502, -113.769),
    (4, 5.502, -113.769),
]))
fillet.setExpression("Radius", "Params.fillet_radius")
doc.recompute()

fillet2 = body.newObject("PartDesign::Fillet", "Fillet001")
fillet2.Base = (fillet, edges_at(fillet, [(9.5, 0, 12), (0, 0, 12)]))
fillet2.setExpression("Radius", "Params.fillet2_radius")
doc.recompute()

chamfer = body.newObject("PartDesign::Chamfer", "Chamfer")
chamfer.Base = (fillet2, edges_at(fillet2, [
    (9.5, 0, 38.5),
    (19.8, 0, 38.5),
    (1.2, 0, -6.05),
    (1.2, 0, -126.05),
    (18.6, 0, -6.05),
    (18.6, 0, -126.05),
]))
chamfer.setExpression("Size", "Params.chamfer_size")
doc.recompute()

fillet3 = body.newObject("PartDesign::Fillet", "Fillet002")
fillet3.Base = (chamfer, edges_at(chamfer, [
    (9.5, 0, 45.5),
    (0, -5.479, -105.599),
    (0, -4.225, -79.948),
    (0, 4.225, -79.948),
    (0, 5.479, -105.599),
    (0, 0, -130.05),
    (19.8, 0, -130.05),
    (19.8, 5.479, -105.599),
    (19.8, 4.225, -79.948),
    (19.8, 10.364, -11.979),
    (19.8, 0, 45.5),
    (19.8, -10.364, -11.979),
    (19.8, -4.225, -79.948),
    (19.8, -5.479, -105.599),
    (19.8, -1.731, -79.782),
    (19.8, 1.731, -79.782),
    (19.8, 2.252, -102.352),
    (19.8, 6.987, -36.693),
    (0, -1.731, -79.782),
    (0, -2.252, -102.352),
    (0, 1.731, -79.782),
    (0, -6.987, -36.693),
    (19.8, 0, -110.063),
    (19.8, -2.252, -102.352),
    (19.8, -6.987, -36.693),
    (19.8, 0, -10),
    (0, 0, -10),
    (0, 6.987, -36.693),
    (0, 0, -110.063),
    (0, 2.252, -102.352),
    (19.8, -3.655, -110.503),
    (19.8, 3.655, -110.503),
    (19.8, -7.254, -7.722),
    (19.8, 7.254, -7.722),
    (0, -7.254, -7.722),
    (0, 7.254, -7.722),
    (0, -3.655, -110.503),
    (0, 3.655, -110.503),
    (4.75, -9.282, 12),
    (4.75, 9.282, 12),
    (9.5, -7.423, 28.531),
    (9.5, 7.423, 28.531),
    (0, -10.001, -28.608),
    (1.17, -9.379, 10.826),
    (0, 10.001, -28.608),
    (1.17, 9.379, 10.826),
    (8.332, 9.18, 13.175),
    (8.332, -9.18, 13.175),
]))
fillet3.setExpression("Radius", "Params.fillet3_radius")

doc.recompute()
